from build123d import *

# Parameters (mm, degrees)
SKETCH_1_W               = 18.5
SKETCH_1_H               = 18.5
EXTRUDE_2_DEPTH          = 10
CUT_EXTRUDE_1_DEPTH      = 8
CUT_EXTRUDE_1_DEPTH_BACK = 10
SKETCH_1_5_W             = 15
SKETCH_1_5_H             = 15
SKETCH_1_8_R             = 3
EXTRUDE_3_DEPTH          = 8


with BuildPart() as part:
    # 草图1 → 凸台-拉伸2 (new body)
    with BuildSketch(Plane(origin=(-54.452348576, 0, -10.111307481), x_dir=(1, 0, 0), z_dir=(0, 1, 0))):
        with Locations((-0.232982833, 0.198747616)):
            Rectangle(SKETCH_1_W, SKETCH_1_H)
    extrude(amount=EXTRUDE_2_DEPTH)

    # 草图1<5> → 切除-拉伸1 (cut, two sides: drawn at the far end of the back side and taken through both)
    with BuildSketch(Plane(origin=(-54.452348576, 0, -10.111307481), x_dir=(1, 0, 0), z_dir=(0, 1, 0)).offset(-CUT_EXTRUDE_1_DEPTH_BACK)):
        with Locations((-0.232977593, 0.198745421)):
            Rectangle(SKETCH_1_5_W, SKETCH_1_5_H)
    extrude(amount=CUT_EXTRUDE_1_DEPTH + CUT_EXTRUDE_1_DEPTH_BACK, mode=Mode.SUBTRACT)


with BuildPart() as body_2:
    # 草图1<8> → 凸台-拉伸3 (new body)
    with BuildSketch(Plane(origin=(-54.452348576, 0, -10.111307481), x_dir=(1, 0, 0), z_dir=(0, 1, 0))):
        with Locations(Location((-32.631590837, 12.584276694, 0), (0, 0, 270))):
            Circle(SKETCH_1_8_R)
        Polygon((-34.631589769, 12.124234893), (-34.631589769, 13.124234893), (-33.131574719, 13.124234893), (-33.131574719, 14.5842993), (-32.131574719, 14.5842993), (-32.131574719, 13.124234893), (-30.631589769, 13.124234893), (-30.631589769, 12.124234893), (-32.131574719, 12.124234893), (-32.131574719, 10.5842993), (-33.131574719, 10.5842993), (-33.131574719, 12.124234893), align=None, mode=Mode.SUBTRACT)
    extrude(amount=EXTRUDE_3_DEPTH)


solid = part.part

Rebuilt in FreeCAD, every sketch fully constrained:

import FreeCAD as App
import Part
import Sketcher

V = App.Vector


def add_polygon(sketch, points):
    """Adds a closed chain of lines whose ends are joined by coincident constraints."""
    first, n = sketch.GeometryCount, len(points)
    for a, b in zip(points, points[1:] + points[:1]):
        sketch.addGeometry(Part.LineSegment(App.Vector(*a, 0), App.Vector(*b, 0)), False)
    for i in range(n):
        sketch.addConstraint(Sketcher.Constraint("Coincident", first + i, 2, first + (i + 1) % n, 1))

doc = App.newDocument("Part")
params = doc.addObject("Spreadsheet::Sheet", "Params")
for row, (alias, value) in enumerate([
    ("sketch1_width", "18.5 mm"),
    ("pad1_length", "10 mm"),
    ("sketch2_width", "15 mm"),
    ("pocket1_length", "8 mm"),
    ("pocket1_length2", "10 mm"),
    ("sketch3_diameter", "6 mm"),
    ("sketch3_width", "1 mm"),
    ("pad2_length", "8 mm"),
], start=1):
    params.set(f"A{row}", alias)
    params.set(f"B{row}", "=" + value)
    params.setAlias(f"B{row}", alias)

body = doc.addObject("PartDesign::Body", "Body")

sketch1 = body.newObject("Sketcher::SketchObject", "Sketch")
sketch1.AttachmentSupport = (doc.getObject("XZ_Plane"), [""])
sketch1.MapMode = "FlatFace"
add_polygon(sketch1, [(-63.935331, -19.560055), (-63.935331, -1.060055), (-45.435331, -1.060055), (-45.435331, -19.560055)])
sketch1.addConstraint([
    Sketcher.Constraint("Vertical", 0),
    Sketcher.Constraint("Horizontal", 1),
    Sketcher.Constraint("Vertical", 2),
    Sketcher.Constraint("Horizontal", 3),
    Sketcher.Constraint("Equal", 3, 0),
    Sketcher.Constraint("DistanceX", 1, 1, 1, 2, 18.5),
    Sketcher.Constraint("DistanceX", 0, 2, -1, 1, 63.935331),
    Sketcher.Constraint("DistanceY", 0, 2, -1, 1, 1.060055),
])
sketch1.setExpression("Constraints[9]", "Params.sketch1_width")
pad1 = body.newObject("PartDesign::Pad", "Pad")
pad1.Profile = sketch1
pad1.setExpression("Length", "Params.pad1_length")
pad1.Reversed = True

sketch2 = body.newObject("Sketcher::SketchObject", "Sketch001")
sketch2.AttachmentSupport = (doc.getObject("XZ_Plane"), [""])
sketch2.MapMode = "FlatFace"
add_polygon(sketch2, [(-62.185326, -17.810053), (-62.185326, -2.810053), (-47.185326, -2.810053), (-47.185326, -17.810053)])
sketch2.addConstraint([
    Sketcher.Constraint("Vertical", 0),
    Sketcher.Constraint("Horizontal", 1),
    Sketcher.Constraint("Vertical", 2),
    Sketcher.Constraint("Horizontal", 3),
    Sketcher.Constraint("Equal", 3, 0),
    Sketcher.Constraint("DistanceX", 1, 1, 1, 2, 15.0),
    Sketcher.Constraint("DistanceX", 0, 2, -1, 1, 62.185326),
    Sketcher.Constraint("DistanceY", 0, 2, -1, 1, 2.810053),
])
sketch2.setExpression("Constraints[9]", "Params.sketch2_width")
pocket1 = body.newObject("PartDesign::Pocket", "Pocket")
pocket1.Profile = sketch2
pocket1.Type = "TwoLengths"
pocket1.setExpression("Length", "Params.pocket1_length")
pocket1.setExpression("Length2", "Params.pocket1_length2")
body2 = doc.addObject("PartDesign::Body", "Body001")

sketch3 = body2.newObject("Sketcher::SketchObject", "Sketch002")
sketch3.AttachmentSupport = (doc.getObject("XZ_Plane001"), [""])
sketch3.MapMode = "FlatFace"
sketch3.addGeometry(Part.Circle(V(-87.083939, -22.695584, 0), V(0, 0, 1), 3), False)
add_polygon(sketch3, [(-87.583923, -22.235542), (-89.083938, -22.235542), (-89.083938, -23.235542), (-87.583923, -23.235542), (-87.583923, -24.695607), (-86.583923, -24.695607), (-86.583923, -23.235542), (-85.083938, -23.235542), (-85.083938, -22.235542), (-86.583923, -22.235542), (-86.583923, -20.695607), (-87.583923, -20.695607)])
sketch3.addConstraint([
    Sketcher.Constraint("Horizontal", 1),
    Sketcher.Constraint("Vertical", 2),
    Sketcher.Constraint("Horizontal", 3),
    Sketcher.Constraint("Vertical", 4),
    Sketcher.Constraint("Horizontal", 5),
    Sketcher.Constraint("Vertical", 6),
    Sketcher.Constraint("Horizontal", 7),
    Sketcher.Constraint("Vertical", 8),
    Sketcher.Constraint("Horizontal", 9),
    Sketcher.Constraint("Vertical", 10),
    Sketcher.Constraint("Horizontal", 11),
    Sketcher.Constraint("Vertical", 12),
    Sketcher.Constraint("Horizontal", 3, 2, 6, 2),
    Sketcher.Constraint("Horizontal", 1, 2, 8, 2),
    Sketcher.Constraint("Vertical", 6, 2, 9, 2),
    Sketcher.Constraint("Vertical", 4, 2, 11, 2),
    Sketcher.Constraint("Equal", 11, 2),
    Sketcher.Constraint("Diameter", 0, 6.0),
    Sketcher.Constraint("DistanceX", 5, 1, 5, 2, 1.0),
    Sketcher.Constraint("DistanceX", 1, 2, 0, 3, 1.999999),
    Sketcher.Constraint("DistanceX", 0, 3, 7, 2, 2.000001),
    Sketcher.Constraint("DistanceX", 1, 2, 1, 1, 1.500015),
    Sketcher.Constraint("DistanceY", 4, 2, 4, 1, 1.460064),
    Sketcher.Constraint("DistanceY", 10, 1, 10, 2, 1.539936),
    Sketcher.Constraint("DistanceX", 0, 3, -1, 1, 87.083939),
    Sketcher.Constraint("DistanceY", 0, 3, 1, 2, 0.460042),
    Sketcher.Constraint("DistanceY", 0, 3, -1, 1, 22.695584),
])
sketch3.setExpression("Constraints[29]", "Params.sketch3_diameter")
sketch3.setExpression("Constraints[30]", "Params.sketch3_width")
pad2 = body2.newObject("PartDesign::Pad", "Pad001")
pad2.Profile = sketch3
pad2.setExpression("Length", "Params.pad2_length")
pad2.Reversed = True
body2.Visibility = False

doc.recompute()
